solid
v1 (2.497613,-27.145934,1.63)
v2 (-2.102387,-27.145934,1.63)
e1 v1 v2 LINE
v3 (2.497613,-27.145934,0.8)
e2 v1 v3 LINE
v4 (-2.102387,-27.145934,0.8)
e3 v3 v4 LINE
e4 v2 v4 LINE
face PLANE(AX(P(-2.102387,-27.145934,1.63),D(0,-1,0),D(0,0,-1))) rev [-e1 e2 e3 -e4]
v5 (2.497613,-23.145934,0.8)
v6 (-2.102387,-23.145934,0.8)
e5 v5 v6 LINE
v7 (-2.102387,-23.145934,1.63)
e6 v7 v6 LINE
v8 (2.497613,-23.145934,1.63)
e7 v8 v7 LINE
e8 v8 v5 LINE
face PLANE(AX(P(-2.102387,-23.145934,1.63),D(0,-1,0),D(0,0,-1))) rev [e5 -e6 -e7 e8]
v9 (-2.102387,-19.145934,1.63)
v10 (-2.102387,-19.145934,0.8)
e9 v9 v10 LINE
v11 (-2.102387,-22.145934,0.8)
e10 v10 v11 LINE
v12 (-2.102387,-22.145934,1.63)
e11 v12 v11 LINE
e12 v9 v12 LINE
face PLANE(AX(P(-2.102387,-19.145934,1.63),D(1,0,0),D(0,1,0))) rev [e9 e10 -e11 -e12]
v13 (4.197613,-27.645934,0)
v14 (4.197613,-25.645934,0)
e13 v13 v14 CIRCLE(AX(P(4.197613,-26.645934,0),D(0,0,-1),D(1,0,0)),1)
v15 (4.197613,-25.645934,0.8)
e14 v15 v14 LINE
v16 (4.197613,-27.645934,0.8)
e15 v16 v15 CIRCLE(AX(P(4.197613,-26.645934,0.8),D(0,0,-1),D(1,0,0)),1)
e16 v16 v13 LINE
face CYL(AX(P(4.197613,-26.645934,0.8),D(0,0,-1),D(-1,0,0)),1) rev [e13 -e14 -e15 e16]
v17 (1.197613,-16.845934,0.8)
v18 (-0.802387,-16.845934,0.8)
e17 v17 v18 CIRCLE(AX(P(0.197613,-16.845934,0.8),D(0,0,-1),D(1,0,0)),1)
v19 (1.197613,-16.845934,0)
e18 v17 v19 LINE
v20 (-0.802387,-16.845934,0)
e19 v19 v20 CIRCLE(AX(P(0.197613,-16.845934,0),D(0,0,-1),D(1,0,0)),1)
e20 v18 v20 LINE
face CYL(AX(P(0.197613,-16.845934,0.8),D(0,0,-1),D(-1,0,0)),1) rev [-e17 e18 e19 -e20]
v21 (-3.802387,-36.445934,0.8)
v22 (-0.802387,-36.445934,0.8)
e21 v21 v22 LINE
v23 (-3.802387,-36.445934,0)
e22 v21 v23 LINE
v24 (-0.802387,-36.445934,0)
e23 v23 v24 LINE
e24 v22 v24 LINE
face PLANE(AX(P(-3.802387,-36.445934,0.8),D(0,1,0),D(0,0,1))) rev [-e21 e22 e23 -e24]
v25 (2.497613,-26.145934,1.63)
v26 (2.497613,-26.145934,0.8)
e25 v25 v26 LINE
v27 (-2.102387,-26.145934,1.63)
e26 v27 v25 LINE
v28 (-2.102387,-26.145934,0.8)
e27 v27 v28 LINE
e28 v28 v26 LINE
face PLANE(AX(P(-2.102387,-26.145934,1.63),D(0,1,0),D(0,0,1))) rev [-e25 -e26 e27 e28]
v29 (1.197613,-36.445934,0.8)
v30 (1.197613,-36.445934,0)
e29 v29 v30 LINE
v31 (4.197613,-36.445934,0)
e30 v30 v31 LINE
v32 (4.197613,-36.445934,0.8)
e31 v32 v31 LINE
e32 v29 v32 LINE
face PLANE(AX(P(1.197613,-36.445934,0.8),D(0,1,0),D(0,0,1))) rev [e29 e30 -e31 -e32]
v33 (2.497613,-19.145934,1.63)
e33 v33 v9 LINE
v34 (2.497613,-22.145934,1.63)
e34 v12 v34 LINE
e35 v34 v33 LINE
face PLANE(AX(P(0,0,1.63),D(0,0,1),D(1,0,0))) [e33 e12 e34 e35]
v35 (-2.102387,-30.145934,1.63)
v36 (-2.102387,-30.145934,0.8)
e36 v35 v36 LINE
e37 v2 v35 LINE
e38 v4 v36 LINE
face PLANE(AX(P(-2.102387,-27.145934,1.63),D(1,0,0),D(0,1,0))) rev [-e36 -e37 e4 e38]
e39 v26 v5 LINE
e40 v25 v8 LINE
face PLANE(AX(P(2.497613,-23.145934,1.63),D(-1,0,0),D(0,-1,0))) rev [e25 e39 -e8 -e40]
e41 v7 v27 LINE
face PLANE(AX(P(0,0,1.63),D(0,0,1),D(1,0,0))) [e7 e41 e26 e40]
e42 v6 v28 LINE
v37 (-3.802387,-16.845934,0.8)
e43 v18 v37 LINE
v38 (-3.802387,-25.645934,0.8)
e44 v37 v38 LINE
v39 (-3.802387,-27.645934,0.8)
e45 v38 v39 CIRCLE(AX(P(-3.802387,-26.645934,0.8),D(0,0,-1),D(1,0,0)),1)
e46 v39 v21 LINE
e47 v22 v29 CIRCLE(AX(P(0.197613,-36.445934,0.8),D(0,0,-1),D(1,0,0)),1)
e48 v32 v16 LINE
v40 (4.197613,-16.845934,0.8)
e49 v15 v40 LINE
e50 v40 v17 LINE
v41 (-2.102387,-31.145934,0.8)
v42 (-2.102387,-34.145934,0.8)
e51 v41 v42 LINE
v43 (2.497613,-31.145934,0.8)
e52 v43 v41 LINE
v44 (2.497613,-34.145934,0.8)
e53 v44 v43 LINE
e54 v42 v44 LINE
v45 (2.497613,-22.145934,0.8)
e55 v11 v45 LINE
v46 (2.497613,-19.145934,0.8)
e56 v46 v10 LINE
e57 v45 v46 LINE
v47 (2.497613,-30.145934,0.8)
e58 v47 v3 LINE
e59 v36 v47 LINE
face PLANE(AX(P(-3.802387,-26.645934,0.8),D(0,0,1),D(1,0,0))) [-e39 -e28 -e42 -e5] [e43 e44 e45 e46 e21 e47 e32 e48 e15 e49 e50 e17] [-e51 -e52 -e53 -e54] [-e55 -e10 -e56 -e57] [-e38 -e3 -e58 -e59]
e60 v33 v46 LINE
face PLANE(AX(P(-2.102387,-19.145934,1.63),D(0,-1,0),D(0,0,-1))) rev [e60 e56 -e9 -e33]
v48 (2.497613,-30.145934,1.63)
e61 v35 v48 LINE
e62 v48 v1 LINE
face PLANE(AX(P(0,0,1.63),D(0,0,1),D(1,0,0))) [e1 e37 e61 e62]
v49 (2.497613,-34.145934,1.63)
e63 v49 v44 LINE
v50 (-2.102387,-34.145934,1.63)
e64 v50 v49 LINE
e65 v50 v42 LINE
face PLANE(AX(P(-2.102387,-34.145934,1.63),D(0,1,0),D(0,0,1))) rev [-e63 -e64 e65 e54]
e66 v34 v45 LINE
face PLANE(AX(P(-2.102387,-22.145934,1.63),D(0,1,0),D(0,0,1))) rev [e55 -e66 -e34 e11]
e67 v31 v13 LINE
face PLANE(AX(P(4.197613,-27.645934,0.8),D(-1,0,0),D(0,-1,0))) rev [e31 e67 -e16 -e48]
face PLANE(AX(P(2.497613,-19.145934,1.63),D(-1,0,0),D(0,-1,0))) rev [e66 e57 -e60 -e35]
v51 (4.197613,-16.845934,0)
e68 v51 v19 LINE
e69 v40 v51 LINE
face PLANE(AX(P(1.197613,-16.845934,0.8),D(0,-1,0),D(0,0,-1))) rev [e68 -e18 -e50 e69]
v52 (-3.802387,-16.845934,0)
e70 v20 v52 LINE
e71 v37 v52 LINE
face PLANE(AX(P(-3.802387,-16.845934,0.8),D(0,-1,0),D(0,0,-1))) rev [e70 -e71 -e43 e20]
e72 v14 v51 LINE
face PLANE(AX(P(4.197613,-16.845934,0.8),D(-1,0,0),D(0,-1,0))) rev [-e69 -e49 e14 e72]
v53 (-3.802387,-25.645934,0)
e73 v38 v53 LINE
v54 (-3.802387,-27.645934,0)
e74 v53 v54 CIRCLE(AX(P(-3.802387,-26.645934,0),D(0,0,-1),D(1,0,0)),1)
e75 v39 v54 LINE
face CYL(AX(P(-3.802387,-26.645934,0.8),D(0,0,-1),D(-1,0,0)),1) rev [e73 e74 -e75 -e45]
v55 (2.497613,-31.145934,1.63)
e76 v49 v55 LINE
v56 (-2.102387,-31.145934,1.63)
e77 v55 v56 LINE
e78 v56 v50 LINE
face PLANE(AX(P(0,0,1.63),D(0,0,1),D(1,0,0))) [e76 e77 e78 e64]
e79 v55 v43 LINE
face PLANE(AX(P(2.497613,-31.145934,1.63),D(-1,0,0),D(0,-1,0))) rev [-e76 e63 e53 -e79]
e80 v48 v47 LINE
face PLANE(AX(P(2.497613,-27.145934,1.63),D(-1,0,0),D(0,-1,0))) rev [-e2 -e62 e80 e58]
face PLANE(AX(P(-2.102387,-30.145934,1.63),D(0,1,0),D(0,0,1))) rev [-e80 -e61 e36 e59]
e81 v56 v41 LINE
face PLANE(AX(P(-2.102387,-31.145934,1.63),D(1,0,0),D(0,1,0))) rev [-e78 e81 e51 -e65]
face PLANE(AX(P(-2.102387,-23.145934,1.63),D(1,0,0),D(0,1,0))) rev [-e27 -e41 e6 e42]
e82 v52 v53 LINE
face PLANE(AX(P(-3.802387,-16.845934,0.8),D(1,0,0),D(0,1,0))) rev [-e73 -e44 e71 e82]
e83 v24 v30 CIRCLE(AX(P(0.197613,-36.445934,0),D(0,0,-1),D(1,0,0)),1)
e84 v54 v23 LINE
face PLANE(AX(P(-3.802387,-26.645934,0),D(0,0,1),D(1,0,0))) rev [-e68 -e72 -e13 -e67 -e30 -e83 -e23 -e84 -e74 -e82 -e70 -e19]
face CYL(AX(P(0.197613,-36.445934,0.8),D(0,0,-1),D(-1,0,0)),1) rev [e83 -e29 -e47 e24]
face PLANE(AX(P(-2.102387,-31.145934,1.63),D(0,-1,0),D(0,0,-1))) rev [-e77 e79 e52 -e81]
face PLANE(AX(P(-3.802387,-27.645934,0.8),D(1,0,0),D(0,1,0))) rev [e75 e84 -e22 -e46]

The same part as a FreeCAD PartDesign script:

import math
import FreeCAD as App
import Part
import Sketcher


def add_polygon(sketch, points):
    """Adds a closed chain of lines whose ends are joined by coincident constraints."""
    first, n = sketch.GeometryCount, len(points)
    for a, b in zip(points, points[1:] + points[:1]):
        sketch.addGeometry(Part.LineSegment(App.Vector(*a, 0), App.Vector(*b, 0)), False)
    for i in range(n):
        sketch.addConstraint(Sketcher.Constraint("Coincident", first + i, 2, first + (i + 1) % n, 1))

doc = App.newDocument("Part")
body = doc.addObject("PartDesign::Body", "Body")

# Sketch on XY plane
sketch1 = body.newObject("Sketcher::SketchObject", "Sketch")
sketch1.AttachmentSupport = (doc.getObject("XY_Plane"), [""])
sketch1.MapMode = "FlatFace"
sketch1.addGeometry([
    Part.LineSegment(App.Vector(4.2, -16.8, 0), App.Vector(1.2, -16.8, 0)),  # 0
    Part.ArcOfCircle(Part.Circle(App.Vector(0.2, -16.8, 0), App.Vector(0, 0, 1), 1), math.radians(180), math.radians(360)),  # 1
    Part.LineSegment(App.Vector(-0.8, -16.8, 0), App.Vector(-3.8, -16.8, 0)),  # 2
    Part.LineSegment(App.Vector(-3.8, -16.8, 0), App.Vector(-3.8, -25.6, 0)),  # 3
    Part.ArcOfCircle(Part.Circle(App.Vector(-3.8, -26.6, 0), App.Vector(0, 0, 1), 1), math.radians(-90), math.radians(90)),  # 4
    Part.LineSegment(App.Vector(-3.8, -27.6, 0), App.Vector(-3.8, -36.4, 0)),  # 5
    Part.LineSegment(App.Vector(-3.8, -36.4, 0), App.Vector(-0.8, -36.4, 0)),  # 6
    Part.ArcOfCircle(Part.Circle(App.Vector(0.2, -36.4, 0), App.Vector(0, 0, 1), 1), math.radians(0), math.radians(180)),  # 7
    Part.LineSegment(App.Vector(1.2, -36.4, 0), App.Vector(4.2, -36.4, 0)),  # 8
    Part.LineSegment(App.Vector(4.2, -36.4, 0), App.Vector(4.2, -27.6, 0)),  # 9
    Part.ArcOfCircle(Part.Circle(App.Vector(4.2, -26.6, 0), App.Vector(0, 0, 1), 1), math.radians(90), math.radians(270)),  # 10
    Part.LineSegment(App.Vector(4.2, -25.6, 0), App.Vector(4.2, -16.8, 0)),  # 11
], False)
sketch1.addConstraint([
    Sketcher.Constraint("Coincident", 0, 2, 1, 2),
    Sketcher.Constraint("Coincident", 1, 1, 2, 1),
    Sketcher.Constraint("Coincident", 2, 2, 3, 1),
    Sketcher.Constraint("Coincident", 3, 2, 4, 2),
    Sketcher.Constraint("Coincident", 4, 1, 5, 1),
    Sketcher.Constraint("Coincident", 5, 2, 6, 1),
    Sketcher.Constraint("Coincident", 6, 2, 7, 2),
    Sketcher.Constraint("Coincident", 7, 1, 8, 1),
    Sketcher.Constraint("Coincident", 8, 2, 9, 1),
    Sketcher.Constraint("Coincident", 9, 2, 10, 2),
    Sketcher.Constraint("Coincident", 10, 1, 11, 1),
    Sketcher.Constraint("Coincident", 11, 2, 0, 1),
    Sketcher.Constraint("Horizontal", 0),
    Sketcher.Constraint("Horizontal", 2),
    Sketcher.Constraint("Vertical", 3),
    Sketcher.Constraint("Vertical", 5),
    Sketcher.Constraint("Horizontal", 6),
    Sketcher.Constraint("Horizontal", 8),
    Sketcher.Constraint("Vertical", 9),
    Sketcher.Constraint("Vertical", 11),
    Sketcher.Constraint("Equal", 1, 4),
    Sketcher.Constraint("Equal", 4, 7),
    Sketcher.Constraint("Equal", 7, 10),
    Sketcher.Constraint("Horizontal", 4, 3, 10, 3),
    Sketcher.Constraint("Horizontal", 1, 3, 0, 2),
    Sketcher.Constraint("Horizontal", 0, 2, 1, 1),
    Sketcher.Constraint("Horizontal", 7, 3, 5, 2),
    Sketcher.Constraint("Horizontal", 6, 2, 7, 1),
    Sketcher.Constraint("Vertical", 1, 3, 7, 3),
    Sketcher.Constraint("Vertical", 4, 3, 2, 2),
    Sketcher.Constraint("Vertical", 3, 2, 4, 1),
    Sketcher.Constraint("Vertical", 10, 3, 8, 2),
    Sketcher.Constraint("Vertical", 9, 2, 10, 1),
    Sketcher.Constraint("Equal", 0, 2),
    Sketcher.Constraint("Equal", 3, 5),
    Sketcher.Constraint("Radius", 1, 1.0),
    Sketcher.Constraint("DistanceX", 0, 2, 0, 1, 3.0),
    Sketcher.Constraint("DistanceY", 3, 2, 3, 1, 8.8),
    Sketcher.Constraint("DistanceX", -1, 1, 1, 3, 0.197613),
    Sketcher.Constraint("DistanceY", 1, 3, -1, 1, 16.845934),
])
pad1 = body.newObject("PartDesign::Pad", "Pad")
pad1.Profile = sketch1
pad1.Length = 0.8

# Sketch on XY plane
sketch2 = body.newObject("Sketcher::SketchObject", "Sketch001")
sketch2.AttachmentSupport = (doc.getObject("XY_Plane"), [""])
sketch2.MapMode = "FlatFace"
sketch2.AttachmentOffset = App.Placement(App.Vector(0, 0, 0.8), App.Rotation())
add_polygon(sketch2, [(-2.1, -19.1), (-2.1, -22.1), (2.5, -22.1), (2.5, -19.1)])  # lines 0-3
add_polygon(sketch2, [(-2.1, -31.1), (-2.1, -34.1), (2.5, -34.1), (2.5, -31.1)])  # lines 4-7
add_polygon(sketch2, [(-2.1, -23.1), (-2.1, -26.1), (2.5, -26.1), (2.5, -23.1)])  # lines 8-11
add_polygon(sketch2, [(-2.1, -27.1), (-2.1, -30.1), (2.5, -30.1), (2.5, -27.1)])  # lines 12-15
sketch2.addConstraint([
    Sketcher.Constraint("Vertical", 0),
    Sketcher.Constraint("Horizontal", 1),
    Sketcher.Constraint("Vertical", 2),
    Sketcher.Constraint("Horizontal", 3),
    Sketcher.Constraint("Vertical", 4),
    Sketcher.Constraint("Horizontal", 5),
    Sketcher.Constraint("Vertical", 6),
    Sketcher.Constraint("Horizontal", 7),
    Sketcher.Constraint("Vertical", 8),
    Sketcher.Constraint("Horizontal", 9),
    Sketcher.Constraint("Vertical", 10),
    Sketcher.Constraint("Horizontal", 11),
    Sketcher.Constraint("Vertical", 12),
    Sketcher.Constraint("Horizontal", 13),
    Sketcher.Constraint("Vertical", 14),
    Sketcher.Constraint("Horizontal", 15),
    Sketcher.Constraint("Vertical", 3, 2, 4, 2),
    Sketcher.Constraint("Vertical", 2, 2, 5, 2),
    Sketcher.Constraint("Vertical", 7, 2, 8, 2),
    Sketcher.Constraint("Vertical", 6, 2, 9, 2),
    Sketcher.Constraint("Vertical", 11, 2, 12, 2),
    Sketcher.Constraint("Vertical", 10, 2, 13, 2),
    Sketcher.Constraint("Equal", 2, 4),
    Sketcher.Constraint("Equal", 6, 8),
    Sketcher.Constraint("Equal", 10, 12),
    Sketcher.Constraint("DistanceY", 0, 2, 0, 1, 3.0),
    Sketcher.Constraint("DistanceX", 1, 1, 1, 2, 4.6),
    Sketcher.Constraint("DistanceY", 4, 2, 0, 2, 12.0),
    Sketcher.Constraint("DistanceY", 8, 2, 0, 2, 4.0),
    Sketcher.Constraint("DistanceY", 7, 2, 12, 2, 1.0),
    Sketcher.Constraint("DistanceX", 0, 2, -1, 1, 2.102387),
    Sketcher.Constraint("DistanceY", 0, 2, -1, 1, 22.145934),
])
pad2 = body.newObject("PartDesign::Pad", "Pad001")
pad2.Profile = sketch2
pad2.Length = 0.83

doc.recompute()
